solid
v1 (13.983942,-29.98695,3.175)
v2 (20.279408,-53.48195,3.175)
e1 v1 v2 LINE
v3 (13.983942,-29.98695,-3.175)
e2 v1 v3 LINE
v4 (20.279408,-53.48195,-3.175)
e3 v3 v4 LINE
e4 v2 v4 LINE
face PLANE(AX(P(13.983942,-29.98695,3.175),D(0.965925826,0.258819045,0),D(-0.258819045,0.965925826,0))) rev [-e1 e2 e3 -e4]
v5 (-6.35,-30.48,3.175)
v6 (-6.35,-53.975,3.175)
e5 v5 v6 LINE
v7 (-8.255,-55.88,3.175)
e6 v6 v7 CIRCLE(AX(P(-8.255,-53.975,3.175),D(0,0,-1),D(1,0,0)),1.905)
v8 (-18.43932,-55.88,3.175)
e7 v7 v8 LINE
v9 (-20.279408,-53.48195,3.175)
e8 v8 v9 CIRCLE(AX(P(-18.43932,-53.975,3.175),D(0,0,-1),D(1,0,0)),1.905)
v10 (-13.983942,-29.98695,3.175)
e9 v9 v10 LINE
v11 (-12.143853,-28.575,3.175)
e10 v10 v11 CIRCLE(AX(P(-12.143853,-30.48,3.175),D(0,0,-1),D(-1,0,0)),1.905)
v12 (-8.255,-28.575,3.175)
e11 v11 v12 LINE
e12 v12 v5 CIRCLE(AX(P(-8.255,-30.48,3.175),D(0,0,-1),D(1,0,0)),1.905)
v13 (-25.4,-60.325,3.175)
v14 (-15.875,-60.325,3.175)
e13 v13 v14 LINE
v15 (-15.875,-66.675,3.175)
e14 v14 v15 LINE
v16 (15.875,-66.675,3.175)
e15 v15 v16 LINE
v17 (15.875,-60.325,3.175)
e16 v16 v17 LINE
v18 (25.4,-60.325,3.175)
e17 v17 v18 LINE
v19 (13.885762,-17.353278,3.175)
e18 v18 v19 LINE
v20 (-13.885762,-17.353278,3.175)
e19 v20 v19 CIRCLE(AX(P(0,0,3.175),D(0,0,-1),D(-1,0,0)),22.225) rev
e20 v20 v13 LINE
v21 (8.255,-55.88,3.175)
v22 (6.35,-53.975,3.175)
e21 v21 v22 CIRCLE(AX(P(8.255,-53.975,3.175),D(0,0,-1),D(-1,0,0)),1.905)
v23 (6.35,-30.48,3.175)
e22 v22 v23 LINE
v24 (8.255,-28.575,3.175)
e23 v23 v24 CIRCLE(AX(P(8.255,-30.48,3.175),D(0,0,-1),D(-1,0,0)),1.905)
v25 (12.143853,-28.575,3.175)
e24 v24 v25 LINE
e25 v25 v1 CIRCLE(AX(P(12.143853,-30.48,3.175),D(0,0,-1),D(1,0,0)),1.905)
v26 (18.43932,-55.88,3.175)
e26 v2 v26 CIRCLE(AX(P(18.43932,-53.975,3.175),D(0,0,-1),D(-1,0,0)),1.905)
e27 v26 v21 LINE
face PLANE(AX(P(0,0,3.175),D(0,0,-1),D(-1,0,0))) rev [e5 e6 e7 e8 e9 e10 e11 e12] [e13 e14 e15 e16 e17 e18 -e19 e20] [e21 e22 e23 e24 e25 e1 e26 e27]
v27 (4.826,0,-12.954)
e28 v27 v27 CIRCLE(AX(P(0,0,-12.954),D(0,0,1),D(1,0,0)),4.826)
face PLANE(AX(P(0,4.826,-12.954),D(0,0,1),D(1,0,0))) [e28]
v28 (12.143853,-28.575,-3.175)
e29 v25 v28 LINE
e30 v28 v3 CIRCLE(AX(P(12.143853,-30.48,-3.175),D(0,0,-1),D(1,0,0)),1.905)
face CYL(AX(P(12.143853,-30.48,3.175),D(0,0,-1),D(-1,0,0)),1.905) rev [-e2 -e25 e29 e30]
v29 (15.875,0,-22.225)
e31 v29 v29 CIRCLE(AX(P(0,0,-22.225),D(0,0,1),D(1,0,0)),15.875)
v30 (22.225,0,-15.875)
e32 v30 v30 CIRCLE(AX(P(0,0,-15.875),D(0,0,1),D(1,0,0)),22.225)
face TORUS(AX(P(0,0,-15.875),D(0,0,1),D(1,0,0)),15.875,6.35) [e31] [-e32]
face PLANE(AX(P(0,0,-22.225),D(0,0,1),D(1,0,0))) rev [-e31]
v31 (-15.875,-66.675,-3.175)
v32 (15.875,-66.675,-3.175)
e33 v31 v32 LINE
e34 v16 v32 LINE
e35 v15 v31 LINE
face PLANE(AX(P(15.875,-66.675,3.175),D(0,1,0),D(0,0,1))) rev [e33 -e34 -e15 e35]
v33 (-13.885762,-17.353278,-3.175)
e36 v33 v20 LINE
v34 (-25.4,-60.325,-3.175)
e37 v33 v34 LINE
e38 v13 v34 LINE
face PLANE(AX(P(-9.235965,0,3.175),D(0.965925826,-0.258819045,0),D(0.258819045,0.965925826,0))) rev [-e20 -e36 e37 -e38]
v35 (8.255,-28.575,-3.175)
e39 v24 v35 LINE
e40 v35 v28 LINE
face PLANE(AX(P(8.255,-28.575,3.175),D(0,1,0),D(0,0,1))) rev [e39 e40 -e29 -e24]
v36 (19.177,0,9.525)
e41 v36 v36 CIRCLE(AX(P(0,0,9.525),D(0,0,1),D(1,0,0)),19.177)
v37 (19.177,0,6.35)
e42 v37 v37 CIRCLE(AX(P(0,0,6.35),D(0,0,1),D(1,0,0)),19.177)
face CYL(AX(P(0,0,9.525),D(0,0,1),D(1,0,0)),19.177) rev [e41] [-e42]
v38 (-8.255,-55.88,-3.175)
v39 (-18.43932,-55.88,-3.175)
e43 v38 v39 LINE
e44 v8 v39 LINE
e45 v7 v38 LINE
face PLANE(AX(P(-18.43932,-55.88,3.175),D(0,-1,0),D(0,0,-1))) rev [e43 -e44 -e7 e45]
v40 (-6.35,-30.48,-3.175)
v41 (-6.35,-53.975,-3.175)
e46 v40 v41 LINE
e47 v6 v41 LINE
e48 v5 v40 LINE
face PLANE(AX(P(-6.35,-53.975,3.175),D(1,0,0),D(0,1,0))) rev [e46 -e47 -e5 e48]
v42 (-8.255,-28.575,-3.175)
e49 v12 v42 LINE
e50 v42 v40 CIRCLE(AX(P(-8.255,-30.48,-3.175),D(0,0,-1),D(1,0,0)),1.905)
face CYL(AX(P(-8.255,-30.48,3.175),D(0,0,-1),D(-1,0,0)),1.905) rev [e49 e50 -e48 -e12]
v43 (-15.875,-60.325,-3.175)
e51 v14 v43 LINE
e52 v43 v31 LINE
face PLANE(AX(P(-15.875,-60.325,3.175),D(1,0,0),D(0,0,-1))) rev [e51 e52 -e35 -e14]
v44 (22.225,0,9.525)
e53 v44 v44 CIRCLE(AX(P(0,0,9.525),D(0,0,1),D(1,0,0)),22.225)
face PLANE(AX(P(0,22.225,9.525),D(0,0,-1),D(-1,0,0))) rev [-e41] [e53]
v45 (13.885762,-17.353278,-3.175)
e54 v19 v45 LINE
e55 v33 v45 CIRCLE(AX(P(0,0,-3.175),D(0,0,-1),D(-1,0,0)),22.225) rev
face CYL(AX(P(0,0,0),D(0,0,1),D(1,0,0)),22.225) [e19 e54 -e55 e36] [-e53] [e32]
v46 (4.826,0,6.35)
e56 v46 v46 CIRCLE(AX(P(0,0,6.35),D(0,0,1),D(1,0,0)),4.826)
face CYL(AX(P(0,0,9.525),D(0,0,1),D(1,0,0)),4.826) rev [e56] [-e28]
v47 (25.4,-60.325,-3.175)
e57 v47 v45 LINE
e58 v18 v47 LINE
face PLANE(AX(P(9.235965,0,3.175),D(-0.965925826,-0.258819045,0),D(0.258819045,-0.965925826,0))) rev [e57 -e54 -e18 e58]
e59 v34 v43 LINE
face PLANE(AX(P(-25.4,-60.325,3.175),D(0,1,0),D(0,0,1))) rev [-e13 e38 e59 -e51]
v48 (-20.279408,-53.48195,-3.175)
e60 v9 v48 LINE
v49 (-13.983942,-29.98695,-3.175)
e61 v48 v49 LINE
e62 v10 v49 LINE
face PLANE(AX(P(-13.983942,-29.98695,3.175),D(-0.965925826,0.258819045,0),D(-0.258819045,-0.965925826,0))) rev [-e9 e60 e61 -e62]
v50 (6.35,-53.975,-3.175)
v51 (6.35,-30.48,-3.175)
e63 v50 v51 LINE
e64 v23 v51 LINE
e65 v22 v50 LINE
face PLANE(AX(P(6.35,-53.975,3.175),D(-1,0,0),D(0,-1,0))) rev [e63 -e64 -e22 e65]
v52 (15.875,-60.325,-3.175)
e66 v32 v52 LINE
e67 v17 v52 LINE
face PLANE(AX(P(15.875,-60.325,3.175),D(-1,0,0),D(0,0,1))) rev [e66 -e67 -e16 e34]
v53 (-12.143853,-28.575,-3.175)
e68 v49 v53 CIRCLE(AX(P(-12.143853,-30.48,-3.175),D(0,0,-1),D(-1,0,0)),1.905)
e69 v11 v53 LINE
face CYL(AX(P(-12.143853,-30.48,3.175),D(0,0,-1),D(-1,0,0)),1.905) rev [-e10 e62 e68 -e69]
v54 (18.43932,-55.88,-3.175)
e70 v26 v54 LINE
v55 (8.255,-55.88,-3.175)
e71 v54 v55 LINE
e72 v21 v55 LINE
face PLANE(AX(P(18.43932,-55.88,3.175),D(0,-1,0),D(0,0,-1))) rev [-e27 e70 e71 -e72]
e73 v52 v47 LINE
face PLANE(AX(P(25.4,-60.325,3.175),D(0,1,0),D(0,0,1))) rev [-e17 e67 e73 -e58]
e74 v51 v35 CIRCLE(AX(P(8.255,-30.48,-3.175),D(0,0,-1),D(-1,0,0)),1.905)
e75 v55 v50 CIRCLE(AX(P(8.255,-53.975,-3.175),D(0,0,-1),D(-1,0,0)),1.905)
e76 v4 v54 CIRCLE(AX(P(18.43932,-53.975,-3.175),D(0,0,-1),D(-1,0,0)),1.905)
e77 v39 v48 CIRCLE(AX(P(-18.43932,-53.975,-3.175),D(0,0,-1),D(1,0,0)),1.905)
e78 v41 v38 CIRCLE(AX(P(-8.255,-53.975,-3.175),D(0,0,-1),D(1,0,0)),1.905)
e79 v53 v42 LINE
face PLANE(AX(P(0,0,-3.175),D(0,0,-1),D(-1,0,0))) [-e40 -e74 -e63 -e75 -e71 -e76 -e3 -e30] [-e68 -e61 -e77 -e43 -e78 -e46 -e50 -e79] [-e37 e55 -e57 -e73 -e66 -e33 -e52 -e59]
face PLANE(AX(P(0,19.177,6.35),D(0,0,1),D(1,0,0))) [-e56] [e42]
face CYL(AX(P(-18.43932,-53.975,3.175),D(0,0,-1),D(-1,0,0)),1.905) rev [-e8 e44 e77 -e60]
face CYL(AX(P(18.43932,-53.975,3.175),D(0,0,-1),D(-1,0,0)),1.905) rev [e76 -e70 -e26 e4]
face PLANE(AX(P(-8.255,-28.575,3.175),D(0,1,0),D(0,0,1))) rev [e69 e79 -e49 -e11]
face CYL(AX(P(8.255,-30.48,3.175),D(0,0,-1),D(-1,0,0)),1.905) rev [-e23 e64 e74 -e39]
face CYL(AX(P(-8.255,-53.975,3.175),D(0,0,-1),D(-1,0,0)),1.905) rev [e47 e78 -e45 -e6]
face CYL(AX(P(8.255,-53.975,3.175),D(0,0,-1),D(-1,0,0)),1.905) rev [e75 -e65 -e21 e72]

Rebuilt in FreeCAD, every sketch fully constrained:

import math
import FreeCAD as App
import Part
import Sketcher
Q = App.Units.Quantity

doc = App.newDocument("Part")
body = doc.addObject("PartDesign::Body", "Body")

sketch1 = body.newObject("Sketcher::SketchObject", "Sketch")
sketch1.AttachmentSupport = (doc.getObject("XY_Plane"), [""])
sketch1.MapMode = "FlatFace"
sketch1.addGeometry([
    Part.LineSegment(App.Vector(9, 0, 0), App.Vector(-9, 0, 0)),
    Part.LineSegment(App.Vector(-9, 0, 0), App.Vector(-25, -60, 0)),
    Part.LineSegment(App.Vector(-25, -60, 0), App.Vector(-16, -60, 0)),
    Part.LineSegment(App.Vector(-16, -60, 0), App.Vector(-16, -67, 0)),
    Part.LineSegment(App.Vector(-16, -67, 0), App.Vector(16, -67, 0)),
    Part.LineSegment(App.Vector(16, -67, 0), App.Vector(16, -60, 0)),
    Part.LineSegment(App.Vector(16, -60, 0), App.Vector(25, -60, 0)),
    Part.LineSegment(App.Vector(25, -60, 0), App.Vector(9, 0, 0)),
], False)
sketch1.addConstraint([
    Sketcher.Constraint("Coincident", 0, 2, 1, 1),
    Sketcher.Constraint("Coincident", 1, 2, 2, 1),
    Sketcher.Constraint("Coincident", 2, 2, 3, 1),
    Sketcher.Constraint("Coincident", 3, 2, 4, 1),
    Sketcher.Constraint("Coincident", 4, 2, 5, 1),
    Sketcher.Constraint("Coincident", 5, 2, 6, 1),
    Sketcher.Constraint("Coincident", 6, 2, 7, 1),
    Sketcher.Constraint("Coincident", 7, 2, 0, 1),
    Sketcher.Constraint("Horizontal", 0),
    Sketcher.Constraint("Horizontal", 2),
    Sketcher.Constraint("Vertical", 3),
    Sketcher.Constraint("Horizontal", 4),
    Sketcher.Constraint("Vertical", 5),
    Sketcher.Constraint("Horizontal", 6),
    Sketcher.Constraint("Symmetric", 0, 2, 7, 2, -1, 1),
    Sketcher.Constraint("Symmetric", 2, 2, 5, 2, -2),
    Sketcher.Constraint("Equal", 2, 6),
    Sketcher.Constraint("DistanceX", 1, 2, -1, 1, Q("1 in")),
    Sketcher.Constraint("Angle", 1, Q("-105 deg")),
    Sketcher.Constraint("DistanceX", 4, 1, 4, 2, Q("1.25 in")),
    Sketcher.Constraint("DistanceY", 3, 2, 3, 1, Q("0.25 in")),
    Sketcher.Constraint("DistanceY", 1, 2, -1, 1, Q("2.375 in")),
])
pad1 = body.newObject("PartDesign::Pad", "Pad")
pad1.Profile = sketch1
pad1.Length = Q("0.25 in")
pad1.Midplane = True

sketch2 = body.newObject("Sketcher::SketchObject", "Sketch001")
sketch2.AttachmentSupport = (doc.getObject("YZ_Plane"), [""])
sketch2.MapMode = "FlatFace"
sketch2.addGeometry([
    Part.LineSegment(App.Vector(0, -22, 0), App.Vector(16, -22, 0)),
    Part.ArcOfCircle(Part.Circle(App.Vector(16, -16, 0), App.Vector(0, 0, 1), 6), math.radians(-90), math.radians(0)),
    Part.LineSegment(App.Vector(22, -16, 0), App.Vector(22, 10, 0)),
    Part.LineSegment(App.Vector(22, 10, 0), App.Vector(0, 10, 0)),
    Part.LineSegment(App.Vector(0, 10, 0), App.Vector(0, -22, 0)),
], False)
sketch2.addConstraint([
    Sketcher.Constraint("Tangent", 0, 2, 1, 1),
    Sketcher.Constraint("Tangent", 1, 2, 2, 1),
    Sketcher.Constraint("Coincident", 2, 2, 3, 1),
    Sketcher.Constraint("Coincident", 3, 2, 4, 1),
    Sketcher.Constraint("Coincident", 4, 2, 0, 1),
    Sketcher.Constraint("Horizontal", 0),
    Sketcher.Constraint("Vertical", 2),
    Sketcher.Constraint("Horizontal", 3),
    Sketcher.Constraint("Vertical", 4),
    Sketcher.Constraint("PointOnObject", 3, 2, -2),
    Sketcher.Constraint("DistanceY", 2, 1, 2, 2, Q("1 in")),
    Sketcher.Constraint("Radius", 1, Q("0.25 in")),
    Sketcher.Constraint("DistanceX", 0, 1, 0, 2, Q("0.625 in")),
    Sketcher.Constraint("DistanceY", 1, 3, -1, 1, Q("0.625 in")),
])
revolution = body.newObject("PartDesign::Revolution", "Revolution")
revolution.Profile = sketch2
revolution.ReferenceAxis = (sketch2, ["V_Axis"])
revolution.Angle = 360

sketch3 = body.newObject("Sketcher::SketchObject", "Sketch002")
sketch3.AttachmentSupport = (doc.getObject("YZ_Plane"), [""])
sketch3.MapMode = "FlatFace"
sketch3.addGeometry([
    Part.LineSegment(App.Vector(19.2, 6.3, 0), App.Vector(19.2, 9.5, 0)),
    Part.LineSegment(App.Vector(19.2, 9.5, 0), App.Vector(0, 9.5, 0)),
    Part.LineSegment(App.Vector(0, 9.5, 0), App.Vector(0, -13, 0)),
    Part.LineSegment(App.Vector(0, -13, 0), App.Vector(4.8, -13, 0)),
    Part.LineSegment(App.Vector(4.8, -13, 0), App.Vector(4.8, 6.3, 0)),
    Part.LineSegment(App.Vector(4.8, 6.3, 0), App.Vector(19.2, 6.3, 0)),
], False)
sketch3.addConstraint([
    Sketcher.Constraint("Coincident", 0, 2, 1, 1),
    Sketcher.Constraint("Coincident", 1, 2, 2, 1),
    Sketcher.Constraint("Coincident", 2, 2, 3, 1),
    Sketcher.Constraint("Coincident", 3, 2, 4, 1),
    Sketcher.Constraint("Coincident", 4, 2, 5, 1),
    Sketcher.Constraint("Coincident", 5, 2, 0, 1),
    Sketcher.Constraint("Vertical", 0),
    Sketcher.Constraint("Horizontal", 1),
    Sketcher.Constraint("Vertical", 2),
    Sketcher.Constraint("Horizontal", 3),
    Sketcher.Constraint("Vertical", 4),
    Sketcher.Constraint("Horizontal", 5),
    Sketcher.Constraint("PointOnObject", 1, 2, -2),
    Sketcher.Constraint("DistanceX", 3, 1, 3, 2, Q("0.19 in")),
    Sketcher.Constraint("DistanceY", 4, 1, 4, 2, Q("0.76 in")),
    Sketcher.Constraint("DistanceX", 1, 2, 1, 1, Q("0.755 in")),
    Sketcher.Constraint("DistanceY", 0, 1, 0, 2, Q("0.125 in")),
    Sketcher.Constraint("DistanceY", 2, 2, -1, 1, Q("0.51 in")),
])
groove = body.newObject("PartDesign::Groove", "Groove")
groove.Profile = sketch3
groove.ReferenceAxis = (sketch3, ["V_Axis"])
groove.Angle = 360

sketch4 = body.newObject("Sketcher::SketchObject", "Sketch003")
sketch4.AttachmentSupport = (doc.getObject("XY_Plane"), [""])
sketch4.MapMode = "FlatFace"
sketch4.AttachmentOffset = App.Placement(App.Vector(0, 0, -0.125 * 25.4), App.Rotation())
sketch4.addGeometry([
    Part.LineSegment(App.Vector(14, -30, 0), App.Vector(20.3, -53.5, 0)),
    Part.ArcOfCircle(Part.Circle(App.Vector(18.4, -54, 0), App.Vector(0, 0, 1), 1.9), math.radians(-90), math.radians(15)),
    Part.LineSegment(App.Vector(18.4, -55.9, 0), App.Vector(8.3, -55.9, 0)),
    Part.ArcOfCircle(Part.Circle(App.Vector(8.3, -54, 0), App.Vector(0, 0, 1), 1.9), math.radians(-180), math.radians(-90)),
    Part.LineSegment(App.Vector(6.3, -54, 0), App.Vector(6.3, -30.5, 0)),
    Part.ArcOfCircle(Part.Circle(App.Vector(8.3, -30.5, 0), App.Vector(0, 0, 1), 1.9), math.radians(90), math.radians(180)),
    Part.LineSegment(App.Vector(8.3, -28.6, 0), App.Vector(12.1, -28.6, 0)),
    Part.ArcOfCircle(Part.Circle(App.Vector(12.1, -30.5, 0), App.Vector(0, 0, 1), 1.9), math.radians(15), math.radians(90)),
    Part.LineSegment(App.Vector(-12.1, -28.6, 0), App.Vector(-8.3, -28.6, 0)),
    Part.ArcOfCircle(Part.Circle(App.Vector(-8.3, -30.5, 0), App.Vector(0, 0, 1), 1.9), math.radians(0), math.radians(90)),
    Part.LineSegment(App.Vector(-6.3, -30.5, 0), App.Vector(-6.3, -54, 0)),
    Part.ArcOfCircle(Part.Circle(App.Vector(-8.3, -54, 0), App.Vector(0, 0, 1), 1.9), math.radians(-90), math.radians(0)),
    Part.LineSegment(App.Vector(-8.3, -55.9, 0), App.Vector(-18.4, -55.9, 0)),
    Part.ArcOfCircle(Part.Circle(App.Vector(-18.4, -54, 0), App.Vector(0, 0, 1), 1.9), math.radians(165), math.radians(270)),
    Part.LineSegment(App.Vector(-20.3, -53.5, 0), App.Vector(-14, -30, 0)),
    Part.ArcOfCircle(Part.Circle(App.Vector(-12.1, -30.5, 0), App.Vector(0, 0, 1), 1.9), math.radians(90), math.radians(165)),
], False)
sketch4.addConstraint([
    Sketcher.Constraint("Tangent", 0, 2, 1, 2),
    Sketcher.Constraint("Tangent", 1, 1, 2, 1),
    Sketcher.Constraint("Tangent", 2, 2, 3, 2),
    Sketcher.Constraint("Tangent", 3, 1, 4, 1),
    Sketcher.Constraint("Tangent", 4, 2, 5, 2),
    Sketcher.Constraint("Tangent", 5, 1, 6, 1),
    Sketcher.Constraint("Tangent", 6, 2, 7, 2),
    Sketcher.Constraint("Tangent", 7, 1, 0, 1),
    Sketcher.Constraint("Tangent", 8, 2, 9, 2),
    Sketcher.Constraint("Tangent", 9, 1, 10, 1),
    Sketcher.Constraint("Tangent", 10, 2, 11, 2),
    Sketcher.Constraint("Tangent", 11, 1, 12, 1),
    Sketcher.Constraint("Tangent", 12, 2, 13, 2),
    Sketcher.Constraint("Tangent", 13, 1, 14, 1),
    Sketcher.Constraint("Tangent", 14, 2, 15, 2),
    Sketcher.Constraint("Tangent", 15, 1, 8, 1),
    Sketcher.Constraint("Horizontal", 2),
    Sketcher.Constraint("Vertical", 4),
    Sketcher.Constraint("Horizontal", 6),
    Sketcher.Constraint("Horizontal", 8),
    Sketcher.Constraint("Vertical", 10),
    Sketcher.Constraint("Horizontal", 12),
    Sketcher.Constraint("Equal", 1, 3),
    Sketcher.Constraint("Equal", 3, 5),
    Sketcher.Constraint("Equal", 5, 7),
    Sketcher.Constraint("Equal", 7, 9),
    Sketcher.Constraint("Equal", 9, 11),
    Sketcher.Constraint("Equal", 11, 13),
    Sketcher.Constraint("Equal", 13, 15),
    Sketcher.Constraint("Symmetric", 5, 3, 9, 3, -2),
    Sketcher.Constraint("Symmetric", 1, 3, 13, 3, -2),
    Sketcher.Constraint("Horizontal", 0, 2, 13, 1),
    Sketcher.Constraint("Angle", 0, Q("-75 deg")),
    Sketcher.Constraint("Radius", 1, Q("0.075 in")),
    Sketcher.Constraint("DistanceY", 1, 1, 7, 3, Q("1 in")),
    Sketcher.Constraint("DistanceY", 5, 3, -1, 1, Q("1.2 in")),
    Sketcher.Constraint("DistanceX", 9, 1, 4, 2, Q("0.5 in")),
    Sketcher.Constraint("DistanceX", 2, 2, 2, 1, 10.18432),
])
pocket1 = body.newObject("PartDesign::Pocket", "Pocket")
pocket1.Profile = sketch4
pocket1.Length = Q("0.25 in")
pocket1.Reversed = True

doc.recompute()
